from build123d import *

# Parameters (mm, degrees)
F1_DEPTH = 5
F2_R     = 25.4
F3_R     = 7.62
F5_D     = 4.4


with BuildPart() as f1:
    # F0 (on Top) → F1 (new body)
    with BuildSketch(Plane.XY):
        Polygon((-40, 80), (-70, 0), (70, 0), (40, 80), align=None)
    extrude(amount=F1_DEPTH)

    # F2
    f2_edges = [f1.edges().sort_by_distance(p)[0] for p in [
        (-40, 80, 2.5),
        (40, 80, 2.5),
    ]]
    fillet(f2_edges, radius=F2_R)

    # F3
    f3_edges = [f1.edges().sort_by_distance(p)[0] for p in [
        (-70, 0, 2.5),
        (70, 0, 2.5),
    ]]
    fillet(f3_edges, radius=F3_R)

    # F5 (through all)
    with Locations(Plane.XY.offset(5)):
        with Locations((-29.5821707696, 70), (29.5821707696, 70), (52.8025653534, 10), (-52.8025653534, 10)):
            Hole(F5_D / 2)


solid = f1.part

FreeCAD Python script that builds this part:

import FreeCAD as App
import Part
import Sketcher
from FreeCAD import Vector
Q = App.Units.Quantity


def edges_at(feature, points):
    """Names of the edges that pass closest to the given points."""
    edges = feature.Shape.Edges
    near = lambda p: min(range(len(edges)), key=lambda i: edges[i].distToShape(Part.Vertex(*p))[0])
    return sorted({f"Edge{near(p) + 1}" for p in points})

doc = App.newDocument("Part")
body = doc.addObject("PartDesign::Body", "Body")

# Sketch on XY plane
sketch1 = body.newObject("Sketcher::SketchObject", "Sketch")
sketch1.AttachmentSupport = (doc.getObject("XY_Plane"), [""])
sketch1.MapMode = "FlatFace"
sketch1.addGeometry([
    Part.LineSegment(Vector(-40, 80, 0), Vector(-70, 0, 0)),
    Part.LineSegment(Vector(-70, 0, 0), Vector(70, 0, 0)),
    Part.LineSegment(Vector(70, 0, 0), Vector(40, 80, 0)),
    Part.LineSegment(Vector(40, 80, 0), Vector(-40, 80, 0)),
], False)
sketch1.addConstraint([
    Sketcher.Constraint("Coincident", 0, 2, 1, 1),
    Sketcher.Constraint("Coincident", 1, 2, 2, 1),
    Sketcher.Constraint("Coincident", 2, 2, 3, 1),
    Sketcher.Constraint("Coincident", 3, 2, 0, 1),
    Sketcher.Constraint("Horizontal", 1),
    Sketcher.Constraint("Horizontal", 3),
    Sketcher.Constraint("Symmetric", 0, 2, 1, 2, -1, 1),
    Sketcher.Constraint("Equal", 0, 2),
    Sketcher.Constraint("DistanceX", 1, 1, 1, 2, Q("140 mm")),
    Sketcher.Constraint("DistanceX", 3, 2, 3, 1, Q("80 mm")),
    Sketcher.Constraint("DistanceY", -1, 1, 2, 2, Q("80 mm")),
])
pad1 = body.newObject("PartDesign::Pad", "Pad")
pad1.Profile = sketch1
pad1.Length = 5
doc.recompute()

fillet = body.newObject("PartDesign::Fillet", "Fillet")
fillet.Base = (pad1, edges_at(pad1, [(-40, 80, 2.5), (40, 80, 2.5)]))
fillet.Radius = 25.4
doc.recompute()

fillet2 = body.newObject("PartDesign::Fillet", "Fillet001")
fillet2.Base = (fillet, edges_at(fillet, [(-70, 0, 2.5), (70, 0, 2.5)]))
fillet2.Radius = 7.62

# Sketch on XY plane
sketch2 = body.newObject("Sketcher::SketchObject", "Sketch001")
sketch2.AttachmentSupport = (doc.getObject("XY_Plane"), [""])
sketch2.MapMode = "FlatFace"
sketch2.AttachmentOffset = App.Placement(Vector(0, 0, 5), App.Rotation())
sketch2.addGeometry([
    Part.Circle(Vector(-29.6, 70, 0), Vector(0, 0, 1), 2.2),
    Part.Circle(Vector(29.6, 70, 0), Vector(0, 0, 1), 2.2),
    Part.Circle(Vector(52.8, 10, 0), Vector(0, 0, 1), 2.2),
    Part.Circle(Vector(-52.8, 10, 0), Vector(0, 0, 1), 2.2),
], False)
sketch2.addConstraint([
    Sketcher.Constraint("Equal", 0, 1),
    Sketcher.Constraint("Equal", 1, 2),
    Sketcher.Constraint("Equal", 2, 3),
    Sketcher.Constraint("Symmetric", 0, 3, 1, 3, -2),
    Sketcher.Constraint("Symmetric", 2, 3, 3, 3, -2),
    Sketcher.Constraint("Diameter", 0, Q("4.4 mm")),
    Sketcher.Constraint("DistanceY", -1, 1, 0, 3, Q("70 mm")),
    Sketcher.Constraint("DistanceY", -1, 1, 2, 3, Q("10 mm")),
    Sketcher.Constraint("DistanceX", 0, 3, -1, 1, Q("29.582171 mm")),
    Sketcher.Constraint("DistanceX", 3, 3, 2, 3, Q("105.605131 mm")),
])
doc.recompute()
hole = body.newObject("PartDesign::Hole", "Hole")
hole.Profile = sketch2
hole.ThreadType = "None"
hole.Diameter = 4.4
hole.DepthType = "ThroughAll"

doc.recompute()
